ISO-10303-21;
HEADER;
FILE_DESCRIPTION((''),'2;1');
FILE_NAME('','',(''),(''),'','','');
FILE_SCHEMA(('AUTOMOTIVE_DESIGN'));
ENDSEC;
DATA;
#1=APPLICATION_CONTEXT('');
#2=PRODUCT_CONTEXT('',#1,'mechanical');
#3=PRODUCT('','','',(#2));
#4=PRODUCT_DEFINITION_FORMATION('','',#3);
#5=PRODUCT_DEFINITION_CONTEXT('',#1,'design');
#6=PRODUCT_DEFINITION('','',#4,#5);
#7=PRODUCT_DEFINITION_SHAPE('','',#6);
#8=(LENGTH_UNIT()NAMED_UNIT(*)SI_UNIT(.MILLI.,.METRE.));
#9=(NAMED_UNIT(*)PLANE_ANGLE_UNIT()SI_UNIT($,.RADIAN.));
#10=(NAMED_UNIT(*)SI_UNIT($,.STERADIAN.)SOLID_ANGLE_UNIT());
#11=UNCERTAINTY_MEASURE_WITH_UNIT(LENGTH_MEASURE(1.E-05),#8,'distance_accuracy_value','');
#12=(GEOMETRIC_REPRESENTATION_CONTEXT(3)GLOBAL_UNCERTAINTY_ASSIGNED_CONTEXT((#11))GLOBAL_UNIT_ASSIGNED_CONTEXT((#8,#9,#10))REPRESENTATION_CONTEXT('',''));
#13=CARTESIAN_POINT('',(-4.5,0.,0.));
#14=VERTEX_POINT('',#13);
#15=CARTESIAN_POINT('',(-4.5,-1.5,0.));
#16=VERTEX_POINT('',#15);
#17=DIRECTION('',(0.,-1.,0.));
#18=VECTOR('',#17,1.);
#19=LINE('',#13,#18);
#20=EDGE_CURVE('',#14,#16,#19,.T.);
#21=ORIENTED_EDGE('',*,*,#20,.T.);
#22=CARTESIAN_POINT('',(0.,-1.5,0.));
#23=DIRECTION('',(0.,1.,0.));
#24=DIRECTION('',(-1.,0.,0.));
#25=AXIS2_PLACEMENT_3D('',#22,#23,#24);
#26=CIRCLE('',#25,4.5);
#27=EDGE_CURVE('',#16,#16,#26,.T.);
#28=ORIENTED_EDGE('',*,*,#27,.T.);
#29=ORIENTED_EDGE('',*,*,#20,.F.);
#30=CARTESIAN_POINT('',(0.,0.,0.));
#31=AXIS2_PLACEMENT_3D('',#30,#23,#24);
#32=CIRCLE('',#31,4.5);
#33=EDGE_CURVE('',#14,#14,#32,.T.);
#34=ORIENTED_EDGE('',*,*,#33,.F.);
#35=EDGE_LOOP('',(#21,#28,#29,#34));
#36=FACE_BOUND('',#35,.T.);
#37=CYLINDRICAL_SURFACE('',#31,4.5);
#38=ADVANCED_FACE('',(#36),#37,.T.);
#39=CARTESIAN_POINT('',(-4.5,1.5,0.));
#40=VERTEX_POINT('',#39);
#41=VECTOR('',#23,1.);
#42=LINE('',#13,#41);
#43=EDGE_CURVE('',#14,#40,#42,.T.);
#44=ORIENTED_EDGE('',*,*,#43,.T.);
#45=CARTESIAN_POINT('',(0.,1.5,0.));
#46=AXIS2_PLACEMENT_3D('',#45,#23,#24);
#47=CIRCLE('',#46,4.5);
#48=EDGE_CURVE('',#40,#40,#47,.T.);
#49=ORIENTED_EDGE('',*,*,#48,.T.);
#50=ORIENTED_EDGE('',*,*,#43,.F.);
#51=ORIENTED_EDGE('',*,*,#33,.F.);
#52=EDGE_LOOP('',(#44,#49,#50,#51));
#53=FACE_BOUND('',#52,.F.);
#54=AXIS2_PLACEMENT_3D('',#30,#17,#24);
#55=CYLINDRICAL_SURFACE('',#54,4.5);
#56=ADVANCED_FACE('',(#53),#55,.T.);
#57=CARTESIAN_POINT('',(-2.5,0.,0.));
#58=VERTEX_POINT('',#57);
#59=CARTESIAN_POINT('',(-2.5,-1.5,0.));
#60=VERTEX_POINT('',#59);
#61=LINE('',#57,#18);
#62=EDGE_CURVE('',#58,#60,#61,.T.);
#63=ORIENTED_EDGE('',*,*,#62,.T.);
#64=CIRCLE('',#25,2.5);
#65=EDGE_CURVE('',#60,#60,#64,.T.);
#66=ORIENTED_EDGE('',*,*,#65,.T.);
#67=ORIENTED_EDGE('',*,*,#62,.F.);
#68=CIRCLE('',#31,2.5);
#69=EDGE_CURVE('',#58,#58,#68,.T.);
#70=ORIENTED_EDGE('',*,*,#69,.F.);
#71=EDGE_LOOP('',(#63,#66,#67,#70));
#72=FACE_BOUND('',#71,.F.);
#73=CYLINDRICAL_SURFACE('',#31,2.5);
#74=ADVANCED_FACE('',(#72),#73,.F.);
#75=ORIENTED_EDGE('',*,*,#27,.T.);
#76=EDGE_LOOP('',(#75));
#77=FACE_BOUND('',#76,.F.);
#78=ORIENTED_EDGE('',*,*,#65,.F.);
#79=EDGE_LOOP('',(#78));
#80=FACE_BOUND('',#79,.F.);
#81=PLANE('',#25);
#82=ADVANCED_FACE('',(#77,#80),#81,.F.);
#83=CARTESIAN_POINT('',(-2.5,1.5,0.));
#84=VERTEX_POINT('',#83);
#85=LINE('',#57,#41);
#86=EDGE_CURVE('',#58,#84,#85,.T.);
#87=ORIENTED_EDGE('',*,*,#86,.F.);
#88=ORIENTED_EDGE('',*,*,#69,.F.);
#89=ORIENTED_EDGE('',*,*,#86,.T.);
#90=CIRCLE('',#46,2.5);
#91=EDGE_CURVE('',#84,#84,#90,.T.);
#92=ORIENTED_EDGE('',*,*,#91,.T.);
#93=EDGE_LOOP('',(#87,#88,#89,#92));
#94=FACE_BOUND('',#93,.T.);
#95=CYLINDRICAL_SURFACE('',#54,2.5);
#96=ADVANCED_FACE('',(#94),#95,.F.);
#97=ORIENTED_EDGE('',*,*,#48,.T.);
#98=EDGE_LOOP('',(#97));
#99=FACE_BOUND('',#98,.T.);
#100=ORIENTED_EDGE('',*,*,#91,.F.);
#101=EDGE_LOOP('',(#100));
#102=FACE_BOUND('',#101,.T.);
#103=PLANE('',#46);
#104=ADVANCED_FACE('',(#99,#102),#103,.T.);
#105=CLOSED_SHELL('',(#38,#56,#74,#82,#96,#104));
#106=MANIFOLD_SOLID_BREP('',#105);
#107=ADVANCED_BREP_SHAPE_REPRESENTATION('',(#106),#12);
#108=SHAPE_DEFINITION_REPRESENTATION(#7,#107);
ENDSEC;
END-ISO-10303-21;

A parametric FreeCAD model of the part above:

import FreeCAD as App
import Part
import Sketcher

doc = App.newDocument("Part")
params = doc.addObject("Spreadsheet::Sheet", "Params")
for row, (alias, value) in enumerate([
    ("sketch1_diameter", "9 mm"),
    ("sketch1_diameter2", "5 mm"),
    ("pad1_length", "3 mm"),
], start=1):
    params.set(f"A{row}", alias)
    params.set(f"B{row}", "=" + value)
    params.setAlias(f"B{row}", alias)

body = doc.addObject("PartDesign::Body", "Body")

# Sketch on XZ plane
sketch1 = body.newObject("Sketcher::SketchObject", "Sketch")
sketch1.AttachmentSupport = (doc.getObject("XZ_Plane"), [""])
sketch1.MapMode = "FlatFace"
sketch1.addGeometry([
    Part.Circle(App.Vector(0, 0, 0), App.Vector(0, 0, 1), 4.5),
    Part.Circle(App.Vector(0, 0, 0), App.Vector(0, 0, 1), 2.5),
], False)
sketch1.addConstraint([
    Sketcher.Constraint("Coincident", 0, 3, -1, 1),
    Sketcher.Constraint("Coincident", 1, 3, -1, 1),
    Sketcher.Constraint("Diameter", 0, 9.0),
    Sketcher.Constraint("Diameter", 1, 5.0),
])
sketch1.setExpression("Constraints[2]", "Params.sketch1_diameter")
sketch1.setExpression("Constraints[3]", "Params.sketch1_diameter2")
pad1 = body.newObject("PartDesign::Pad", "Pad")
pad1.Profile = sketch1
pad1.setExpression("Length", "Params.pad1_length")
pad1.Midplane = True

doc.recompute()
